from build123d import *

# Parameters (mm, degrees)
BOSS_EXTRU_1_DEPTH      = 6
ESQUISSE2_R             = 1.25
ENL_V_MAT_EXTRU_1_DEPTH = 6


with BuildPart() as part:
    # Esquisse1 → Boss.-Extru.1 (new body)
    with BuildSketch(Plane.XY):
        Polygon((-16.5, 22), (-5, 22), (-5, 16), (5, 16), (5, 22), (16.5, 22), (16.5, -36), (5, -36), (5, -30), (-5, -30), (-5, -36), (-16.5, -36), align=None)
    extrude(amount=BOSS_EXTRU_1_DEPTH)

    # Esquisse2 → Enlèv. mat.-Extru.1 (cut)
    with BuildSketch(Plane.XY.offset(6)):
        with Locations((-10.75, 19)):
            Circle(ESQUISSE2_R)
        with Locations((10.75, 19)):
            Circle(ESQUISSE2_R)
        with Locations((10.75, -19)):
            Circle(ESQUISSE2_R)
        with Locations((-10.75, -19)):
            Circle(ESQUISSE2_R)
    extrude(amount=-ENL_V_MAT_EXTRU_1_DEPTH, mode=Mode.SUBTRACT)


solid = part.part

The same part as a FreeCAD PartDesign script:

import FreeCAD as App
import Part
import Sketcher
from FreeCAD import Vector


def add_polygon(sketch, points):
    """Adds a closed chain of lines whose ends are joined by coincident constraints."""
    first, n = sketch.GeometryCount, len(points)
    for a, b in zip(points, points[1:] + points[:1]):
        sketch.addGeometry(Part.LineSegment(App.Vector(*a, 0), App.Vector(*b, 0)), False)
    for i in range(n):
        sketch.addConstraint(Sketcher.Constraint("Coincident", first + i, 2, first + (i + 1) % n, 1))

doc = App.newDocument("Part")
params = doc.addObject("Spreadsheet::Sheet", "Params")
for row, (alias, value) in enumerate([
    ("sketch1_width", "10 mm"),
    ("sketch1_height", "58 mm"),
    ("sketch1_height2", "6 mm"),
    ("sketch1_width2", "11.5 mm"),
    ("pad1_length", "6 mm"),
    ("sketch2_diameter", "2.5 mm"),
    ("pocket1_length", "6 mm"),
], start=1):
    params.set(f"A{row}", alias)
    params.set(f"B{row}", "=" + value)
    params.setAlias(f"B{row}", alias)

body = doc.addObject("PartDesign::Body", "Body")

sketch1 = body.newObject("Sketcher::SketchObject", "Sketch")
sketch1.AttachmentSupport = (doc.getObject("XY_Plane"), [""])
sketch1.MapMode = "FlatFace"
add_polygon(sketch1, [(-5, 22), (-16, 22), (-16, -36), (-5, -36), (-5, -30), (5, -30), (5, -36), (16, -36), (16, 22), (5, 22), (5, 16), (-5, 16)])
sketch1.addConstraint(Sketcher.Constraint("Horizontal", 0))
sketch1.addConstraint(Sketcher.Constraint("Vertical", 1))
sketch1.addConstraint(Sketcher.Constraint("Horizontal", 2))
sketch1.addConstraint(Sketcher.Constraint("Vertical", 3))
sketch1.addConstraint(Sketcher.Constraint("Horizontal", 4))
sketch1.addConstraint(Sketcher.Constraint("Vertical", 5))
sketch1.addConstraint(Sketcher.Constraint("Horizontal", 6))
sketch1.addConstraint(Sketcher.Constraint("Vertical", 7))
sketch1.addConstraint(Sketcher.Constraint("Horizontal", 8))
sketch1.addConstraint(Sketcher.Constraint("Vertical", 9))
sketch1.addConstraint(Sketcher.Constraint("Horizontal", 10))
sketch1.addConstraint(Sketcher.Constraint("Vertical", 11))
sketch1.addConstraint(Sketcher.Constraint("Symmetric", 2, 2, 5, 2, -2))
sketch1.addConstraint(Sketcher.Constraint("Symmetric", 0, 2, 7, 2, -2))
sketch1.addConstraint(Sketcher.Constraint("Vertical", 5, 2, 8, 2))
sketch1.addConstraint(Sketcher.Constraint("Vertical", 3, 2, 10, 2))
sketch1.addConstraint(Sketcher.Constraint("Equal", 5, 9))
sketch1.addConstraint(Sketcher.Constraint("DistanceX", 4, 1, 4, 2, 10.0))
sketch1.addConstraint(Sketcher.Constraint("DistanceY", 1, 2, 1, 1, 58.0))
sketch1.addConstraint(Sketcher.Constraint("DistanceY", 3, 1, 3, 2, 6.0))
sketch1.addConstraint(Sketcher.Constraint("DistanceX", 0, 2, 0, 1, 11.5))
sketch1.addConstraint(Sketcher.Constraint("DistanceY", -1, 1, 0, 2, 22.0))
sketch1.setExpression("Constraints[29]", "Params.sketch1_width")
sketch1.setExpression("Constraints[30]", "Params.sketch1_height")
sketch1.setExpression("Constraints[31]", "Params.sketch1_height2")
sketch1.setExpression("Constraints[32]", "Params.sketch1_width2")
pad1 = body.newObject("PartDesign::Pad", "Pad")
pad1.Profile = sketch1
pad1.setExpression("Length", "Params.pad1_length")

sketch2 = body.newObject("Sketcher::SketchObject", "Sketch001")
sketch2.AttachmentSupport = (doc.getObject("XY_Plane"), [""])
sketch2.MapMode = "FlatFace"
sketch2.AttachmentOffset = App.Placement(Vector(0, 0, 6), App.Rotation())
sketch2.addGeometry(Part.Circle(Vector(-10.8, 19, 0), Vector(0, 0, 1), 1.2), False)
sketch2.addGeometry(Part.Circle(Vector(10.8, 19, 0), Vector(0, 0, 1), 1.2), False)
sketch2.addGeometry(Part.Circle(Vector(10.8, -19, 0), Vector(0, 0, 1), 1.2), False)
sketch2.addGeometry(Part.Circle(Vector(-10.8, -19, 0), Vector(0, 0, 1), 1.2), False)
sketch2.addConstraint(Sketcher.Constraint("Equal", 0, 1))
sketch2.addConstraint(Sketcher.Constraint("Equal", 1, 2))
sketch2.addConstraint(Sketcher.Constraint("Equal", 2, 3))
sketch2.addConstraint(Sketcher.Constraint("Symmetric", 0, 3, 2, 3, -1, 1))
sketch2.addConstraint(Sketcher.Constraint("Symmetric", 1, 3, 3, 3, -1, 1))
sketch2.addConstraint(Sketcher.Constraint("Symmetric", 0, 3, 1, 3, -2))
sketch2.addConstraint(Sketcher.Constraint("Diameter", 0, 2.5))
sketch2.addConstraint(Sketcher.Constraint("DistanceY", -1, 1, 0, 3, 19.0))
sketch2.addConstraint(Sketcher.Constraint("DistanceX", 0, 3, 1, 3, 21.5))
sketch2.setExpression("Constraints[6]", "Params.sketch2_diameter")
pocket1 = body.newObject("PartDesign::Pocket", "Pocket")
pocket1.Profile = sketch2
pocket1.setExpression("Length", "Params.pocket1_length")

doc.recompute()
